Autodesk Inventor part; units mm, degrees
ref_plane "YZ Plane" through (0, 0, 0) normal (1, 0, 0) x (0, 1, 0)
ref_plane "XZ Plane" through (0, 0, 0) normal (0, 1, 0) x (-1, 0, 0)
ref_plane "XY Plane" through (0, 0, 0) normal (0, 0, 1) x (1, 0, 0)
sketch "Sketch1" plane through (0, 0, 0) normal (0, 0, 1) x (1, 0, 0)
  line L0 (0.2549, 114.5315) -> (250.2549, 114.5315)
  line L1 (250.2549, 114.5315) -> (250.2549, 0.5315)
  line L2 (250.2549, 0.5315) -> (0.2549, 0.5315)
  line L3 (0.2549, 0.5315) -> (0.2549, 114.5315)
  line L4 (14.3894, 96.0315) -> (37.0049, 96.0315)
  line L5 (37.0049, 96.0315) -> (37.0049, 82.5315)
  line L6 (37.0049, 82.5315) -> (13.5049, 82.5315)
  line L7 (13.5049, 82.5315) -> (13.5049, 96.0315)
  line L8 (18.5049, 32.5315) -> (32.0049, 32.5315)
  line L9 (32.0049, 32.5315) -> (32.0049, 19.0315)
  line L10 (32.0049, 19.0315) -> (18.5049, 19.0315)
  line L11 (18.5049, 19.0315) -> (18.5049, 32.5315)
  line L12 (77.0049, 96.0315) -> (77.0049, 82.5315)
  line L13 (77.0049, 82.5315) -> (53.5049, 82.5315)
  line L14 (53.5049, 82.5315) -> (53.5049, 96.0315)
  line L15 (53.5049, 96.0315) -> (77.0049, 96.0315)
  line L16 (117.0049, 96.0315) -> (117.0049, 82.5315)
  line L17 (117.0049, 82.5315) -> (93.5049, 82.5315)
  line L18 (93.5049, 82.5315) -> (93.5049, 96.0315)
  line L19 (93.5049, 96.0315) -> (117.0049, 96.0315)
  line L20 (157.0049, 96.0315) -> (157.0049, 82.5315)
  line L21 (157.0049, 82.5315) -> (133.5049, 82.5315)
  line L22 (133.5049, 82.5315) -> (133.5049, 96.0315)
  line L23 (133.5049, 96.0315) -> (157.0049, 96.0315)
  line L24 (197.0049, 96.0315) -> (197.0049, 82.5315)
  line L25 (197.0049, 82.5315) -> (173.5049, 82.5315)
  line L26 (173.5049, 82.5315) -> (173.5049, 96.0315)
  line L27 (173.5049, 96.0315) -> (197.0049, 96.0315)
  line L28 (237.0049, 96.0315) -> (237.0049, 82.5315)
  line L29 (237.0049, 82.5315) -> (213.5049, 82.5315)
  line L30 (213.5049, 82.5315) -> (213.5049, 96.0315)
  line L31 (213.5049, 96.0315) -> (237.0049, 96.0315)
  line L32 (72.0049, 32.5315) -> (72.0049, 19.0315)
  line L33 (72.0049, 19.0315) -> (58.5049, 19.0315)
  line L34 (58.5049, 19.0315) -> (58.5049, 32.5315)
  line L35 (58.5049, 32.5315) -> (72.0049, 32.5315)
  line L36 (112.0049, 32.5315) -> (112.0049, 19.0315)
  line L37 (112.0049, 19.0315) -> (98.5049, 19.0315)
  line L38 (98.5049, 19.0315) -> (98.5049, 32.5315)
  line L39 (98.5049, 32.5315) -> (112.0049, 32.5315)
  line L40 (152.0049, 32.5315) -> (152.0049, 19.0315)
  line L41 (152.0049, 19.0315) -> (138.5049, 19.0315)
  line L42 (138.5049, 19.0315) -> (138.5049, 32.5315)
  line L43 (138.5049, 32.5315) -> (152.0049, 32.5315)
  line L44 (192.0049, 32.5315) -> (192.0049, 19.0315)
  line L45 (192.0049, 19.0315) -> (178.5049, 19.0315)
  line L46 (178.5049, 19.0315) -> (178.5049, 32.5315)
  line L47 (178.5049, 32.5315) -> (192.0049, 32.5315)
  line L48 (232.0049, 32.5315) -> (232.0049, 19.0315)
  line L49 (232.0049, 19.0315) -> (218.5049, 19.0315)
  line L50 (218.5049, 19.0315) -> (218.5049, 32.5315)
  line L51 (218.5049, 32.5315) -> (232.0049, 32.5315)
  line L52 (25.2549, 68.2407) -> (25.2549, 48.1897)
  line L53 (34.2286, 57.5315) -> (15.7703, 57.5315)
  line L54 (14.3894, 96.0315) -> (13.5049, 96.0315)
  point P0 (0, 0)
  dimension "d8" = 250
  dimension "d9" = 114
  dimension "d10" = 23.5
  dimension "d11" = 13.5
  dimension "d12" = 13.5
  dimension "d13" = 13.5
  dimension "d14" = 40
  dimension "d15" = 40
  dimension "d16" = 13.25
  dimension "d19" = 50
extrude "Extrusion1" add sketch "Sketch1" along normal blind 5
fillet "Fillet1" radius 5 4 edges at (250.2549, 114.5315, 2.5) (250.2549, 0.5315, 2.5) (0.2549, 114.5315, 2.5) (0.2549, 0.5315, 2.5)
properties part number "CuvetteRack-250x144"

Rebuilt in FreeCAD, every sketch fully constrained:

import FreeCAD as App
import Part
import Sketcher


def edges_at(feature, points):
    """Names of the edges that pass closest to the given points."""
    edges = feature.Shape.Edges
    near = lambda p: min(range(len(edges)), key=lambda i: edges[i].distToShape(Part.Vertex(*p))[0])
    return sorted({f"Edge{near(p) + 1}" for p in points})

doc = App.newDocument("Part")
params = doc.addObject("Spreadsheet::Sheet", "Params")
for row, (alias, value) in enumerate([
    ("sketch1_width", "250 mm"),
    ("sketch1_height", "114 mm"),
    ("sketch1_width2", "13.5 mm"),
    ("sketch1_width3", "23.5 mm"),
    ("pad1_length", "5 mm"),
    ("fillet_radius", "5 mm"),
], start=1):
    params.set(f"A{row}", alias)
    params.set(f"B{row}", "=" + value)
    params.setAlias(f"B{row}", alias)

body = doc.addObject("PartDesign::Body", "Body")

# Sketch on XY plane
sketch1 = body.newObject("Sketcher::SketchObject", "Sketch")
sketch1.AttachmentSupport = (doc.getObject("XY_Plane"), [""])
sketch1.MapMode = "FlatFace"
sketch1.addGeometry([
    Part.LineSegment(App.Vector(250, 115, 0), App.Vector(0, 115, 0)),  # 0
    Part.LineSegment(App.Vector(0, 115, 0), App.Vector(0, 1, 0)),  # 1
    Part.LineSegment(App.Vector(0, 1, 0), App.Vector(250, 1, 0)),  # 2
    Part.LineSegment(App.Vector(250, 1, 0), App.Vector(250, 115, 0)),  # 3
    Part.LineSegment(App.Vector(19, 19, 0), App.Vector(19, 33, 0)),  # 4
    Part.LineSegment(App.Vector(19, 33, 0), App.Vector(32, 33, 0)),  # 5
    Part.LineSegment(App.Vector(32, 33, 0), App.Vector(32, 19, 0)),  # 6
    Part.LineSegment(App.Vector(32, 19, 0), App.Vector(19, 19, 0)),  # 7
    Part.LineSegment(App.Vector(59, 33, 0), App.Vector(72, 33, 0)),  # 8
    Part.LineSegment(App.Vector(72, 33, 0), App.Vector(72, 19, 0)),  # 9
    Part.LineSegment(App.Vector(72, 19, 0), App.Vector(59, 19, 0)),  # 10
    Part.LineSegment(App.Vector(59, 19, 0), App.Vector(59, 33, 0)),  # 11
    Part.LineSegment(App.Vector(99, 33, 0), App.Vector(112, 33, 0)),  # 12
    Part.LineSegment(App.Vector(112, 33, 0), App.Vector(112, 19, 0)),  # 13
    Part.LineSegment(App.Vector(112, 19, 0), App.Vector(99, 19, 0)),  # 14
    Part.LineSegment(App.Vector(99, 19, 0), App.Vector(99, 33, 0)),  # 15
    Part.LineSegment(App.Vector(139, 33, 0), App.Vector(152, 33, 0)),  # 16
    Part.LineSegment(App.Vector(152, 33, 0), App.Vector(152, 19, 0)),  # 17
    Part.LineSegment(App.Vector(152, 19, 0), App.Vector(139, 19, 0)),  # 18
    Part.LineSegment(App.Vector(139, 19, 0), App.Vector(139, 33, 0)),  # 19
    Part.LineSegment(App.Vector(179, 33, 0), App.Vector(192, 33, 0)),  # 20
    Part.LineSegment(App.Vector(192, 33, 0), App.Vector(192, 19, 0)),  # 21
    Part.LineSegment(App.Vector(192, 19, 0), App.Vector(179, 19, 0)),  # 22
    Part.LineSegment(App.Vector(179, 19, 0), App.Vector(179, 33, 0)),  # 23
    Part.LineSegment(App.Vector(219, 33, 0), App.Vector(232, 33, 0)),  # 24
    Part.LineSegment(App.Vector(232, 33, 0), App.Vector(232, 19, 0)),  # 25
    Part.LineSegment(App.Vector(232, 19, 0), App.Vector(219, 19, 0)),  # 26
    Part.LineSegment(App.Vector(219, 19, 0), App.Vector(219, 33, 0)),  # 27
    Part.LineSegment(App.Vector(14, 96, 0), App.Vector(37, 96, 0)),  # 28
    Part.LineSegment(App.Vector(37, 96, 0), App.Vector(37, 83, 0)),  # 29
    Part.LineSegment(App.Vector(37, 83, 0), App.Vector(14, 83, 0)),  # 30
    Part.LineSegment(App.Vector(14, 83, 0), App.Vector(14, 96, 0)),  # 31
    Part.LineSegment(App.Vector(54, 96, 0), App.Vector(77, 96, 0)),  # 32
    Part.LineSegment(App.Vector(77, 96, 0), App.Vector(77, 83, 0)),  # 33
    Part.LineSegment(App.Vector(77, 83, 0), App.Vector(54, 83, 0)),  # 34
    Part.LineSegment(App.Vector(54, 83, 0), App.Vector(54, 96, 0)),  # 35
    Part.LineSegment(App.Vector(94, 96, 0), App.Vector(117, 96, 0)),  # 36
    Part.LineSegment(App.Vector(117, 96, 0), App.Vector(117, 83, 0)),  # 37
    Part.LineSegment(App.Vector(117, 83, 0), App.Vector(94, 83, 0)),  # 38
    Part.LineSegment(App.Vector(94, 83, 0), App.Vector(94, 96, 0)),  # 39
    Part.LineSegment(App.Vector(134, 96, 0), App.Vector(157, 96, 0)),  # 40
    Part.LineSegment(App.Vector(157, 96, 0), App.Vector(157, 83, 0)),  # 41
    Part.LineSegment(App.Vector(157, 83, 0), App.Vector(134, 83, 0)),  # 42
    Part.LineSegment(App.Vector(134, 83, 0), App.Vector(134, 96, 0)),  # 43
    Part.LineSegment(App.Vector(174, 96, 0), App.Vector(197, 96, 0)),  # 44
    Part.LineSegment(App.Vector(197, 96, 0), App.Vector(197, 83, 0)),  # 45
    Part.LineSegment(App.Vector(197, 83, 0), App.Vector(174, 83, 0)),  # 46
    Part.LineSegment(App.Vector(174, 83, 0), App.Vector(174, 96, 0)),  # 47
    Part.LineSegment(App.Vector(214, 96, 0), App.Vector(237, 96, 0)),  # 48
    Part.LineSegment(App.Vector(237, 96, 0), App.Vector(237, 83, 0)),  # 49
    Part.LineSegment(App.Vector(237, 83, 0), App.Vector(214, 83, 0)),  # 50
    Part.LineSegment(App.Vector(214, 83, 0), App.Vector(214, 96, 0)),  # 51
], False)
sketch1.addConstraint([
    Sketcher.Constraint("Coincident", 0, 2, 1, 1),
    Sketcher.Constraint("Coincident", 1, 2, 2, 1),
    Sketcher.Constraint("Coincident", 2, 2, 3, 1),
    Sketcher.Constraint("Coincident", 3, 2, 0, 1),
    Sketcher.Constraint("Coincident", 4, 2, 5, 1),
    Sketcher.Constraint("Coincident", 5, 2, 6, 1),
    Sketcher.Constraint("Coincident", 6, 2, 7, 1),
    Sketcher.Constraint("Coincident", 7, 2, 4, 1),
    Sketcher.Constraint("Coincident", 8, 2, 9, 1),
    Sketcher.Constraint("Coincident", 9, 2, 10, 1),
    Sketcher.Constraint("Coincident", 10, 2, 11, 1),
    Sketcher.Constraint("Coincident", 11, 2, 8, 1),
    Sketcher.Constraint("Coincident", 12, 2, 13, 1),
    Sketcher.Constraint("Coincident", 13, 2, 14, 1),
    Sketcher.Constraint("Coincident", 14, 2, 15, 1),
    Sketcher.Constraint("Coincident", 15, 2, 12, 1),
    Sketcher.Constraint("Coincident", 16, 2, 17, 1),
    Sketcher.Constraint("Coincident", 17, 2, 18, 1),
    Sketcher.Constraint("Coincident", 18, 2, 19, 1),
    Sketcher.Constraint("Coincident", 19, 2, 16, 1),
    Sketcher.Constraint("Coincident", 20, 2, 21, 1),
    Sketcher.Constraint("Coincident", 21, 2, 22, 1),
    Sketcher.Constraint("Coincident", 22, 2, 23, 1),
    Sketcher.Constraint("Coincident", 23, 2, 20, 1),
    Sketcher.Constraint("Coincident", 24, 2, 25, 1),
    Sketcher.Constraint("Coincident", 25, 2, 26, 1),
    Sketcher.Constraint("Coincident", 26, 2, 27, 1),
    Sketcher.Constraint("Coincident", 27, 2, 24, 1),
    Sketcher.Constraint("Coincident", 28, 2, 29, 1),
    Sketcher.Constraint("Coincident", 29, 2, 30, 1),
    Sketcher.Constraint("Coincident", 30, 2, 31, 1),
    Sketcher.Constraint("Coincident", 31, 2, 28, 1),
    Sketcher.Constraint("Coincident", 32, 2, 33, 1),
    Sketcher.Constraint("Coincident", 33, 2, 34, 1),
    Sketcher.Constraint("Coincident", 34, 2, 35, 1),
    Sketcher.Constraint("Coincident", 35, 2, 32, 1),
    Sketcher.Constraint("Coincident", 36, 2, 37, 1),
    Sketcher.Constraint("Coincident", 37, 2, 38, 1),
    Sketcher.Constraint("Coincident", 38, 2, 39, 1),
    Sketcher.Constraint("Coincident", 39, 2, 36, 1),
    Sketcher.Constraint("Coincident", 40, 2, 41, 1),
    Sketcher.Constraint("Coincident", 41, 2, 42, 1),
    Sketcher.Constraint("Coincident", 42, 2, 43, 1),
    Sketcher.Constraint("Coincident", 43, 2, 40, 1),
    Sketcher.Constraint("Coincident", 44, 2, 45, 1),
    Sketcher.Constraint("Coincident", 45, 2, 46, 1),
    Sketcher.Constraint("Coincident", 46, 2, 47, 1),
    Sketcher.Constraint("Coincident", 47, 2, 44, 1),
    Sketcher.Constraint("Coincident", 48, 2, 49, 1),
    Sketcher.Constraint("Coincident", 49, 2, 50, 1),
    Sketcher.Constraint("Coincident", 50, 2, 51, 1),
    Sketcher.Constraint("Coincident", 51, 2, 48, 1),
    Sketcher.Constraint("Horizontal", 0),
    Sketcher.Constraint("Vertical", 1),
    Sketcher.Constraint("Horizontal", 2),
    Sketcher.Constraint("Vertical", 3),
    Sketcher.Constraint("Vertical", 4),
    Sketcher.Constraint("Horizontal", 5),
    Sketcher.Constraint("Vertical", 6),
    Sketcher.Constraint("Horizontal", 7),
    Sketcher.Constraint("Horizontal", 8),
    Sketcher.Constraint("Vertical", 9),
    Sketcher.Constraint("Horizontal", 10),
    Sketcher.Constraint("Vertical", 11),
    Sketcher.Constraint("Horizontal", 12),
    Sketcher.Constraint("Vertical", 13),
    Sketcher.Constraint("Horizontal", 14),
    Sketcher.Constraint("Vertical", 15),
    Sketcher.Constraint("Horizontal", 16),
    Sketcher.Constraint("Vertical", 17),
    Sketcher.Constraint("Horizontal", 18),
    Sketcher.Constraint("Vertical", 19),
    Sketcher.Constraint("Horizontal", 20),
    Sketcher.Constraint("Vertical", 21),
    Sketcher.Constraint("Horizontal", 22),
    Sketcher.Constraint("Vertical", 23),
    Sketcher.Constraint("Horizontal", 24),
    Sketcher.Constraint("Vertical", 25),
    Sketcher.Constraint("Horizontal", 26),
    Sketcher.Constraint("Vertical", 27),
    Sketcher.Constraint("Horizontal", 28),
    Sketcher.Constraint("Vertical", 29),
    Sketcher.Constraint("Horizontal", 30),
    Sketcher.Constraint("Vertical", 31),
    Sketcher.Constraint("Horizontal", 32),
    Sketcher.Constraint("Vertical", 33),
    Sketcher.Constraint("Horizontal", 34),
    Sketcher.Constraint("Vertical", 35),
    Sketcher.Constraint("Horizontal", 36),
    Sketcher.Constraint("Vertical", 37),
    Sketcher.Constraint("Horizontal", 38),
    Sketcher.Constraint("Vertical", 39),
    Sketcher.Constraint("Horizontal", 40),
    Sketcher.Constraint("Vertical", 41),
    Sketcher.Constraint("Horizontal", 42),
    Sketcher.Constraint("Vertical", 43),
    Sketcher.Constraint("Horizontal", 44),
    Sketcher.Constraint("Vertical", 45),
    Sketcher.Constraint("Horizontal", 46),
    Sketcher.Constraint("Vertical", 47),
    Sketcher.Constraint("Horizontal", 48),
    Sketcher.Constraint("Vertical", 49),
    Sketcher.Constraint("Horizontal", 50),
    Sketcher.Constraint("Vertical", 51),
    Sketcher.Constraint("Horizontal", 5, 2, 8, 2),
    Sketcher.Constraint("Horizontal", 7, 2, 9, 2),
    Sketcher.Constraint("Horizontal", 11, 2, 12, 2),
    Sketcher.Constraint("Horizontal", 10, 2, 13, 2),
    Sketcher.Constraint("Horizontal", 15, 2, 16, 2),
    Sketcher.Constraint("Horizontal", 14, 2, 17, 2),
    Sketcher.Constraint("Horizontal", 19, 2, 20, 2),
    Sketcher.Constraint("Horizontal", 18, 2, 21, 2),
    Sketcher.Constraint("Horizontal", 23, 2, 24, 2),
    Sketcher.Constraint("Horizontal", 22, 2, 25, 2),
    Sketcher.Constraint("Horizontal", 31, 2, 32, 2),
    Sketcher.Constraint("Horizontal", 30, 2, 33, 2),
    Sketcher.Constraint("Horizontal", 35, 2, 36, 2),
    Sketcher.Constraint("Horizontal", 34, 2, 37, 2),
    Sketcher.Constraint("Horizontal", 39, 2, 40, 2),
    Sketcher.Constraint("Horizontal", 38, 2, 41, 2),
    Sketcher.Constraint("Horizontal", 43, 2, 44, 2),
    Sketcher.Constraint("Horizontal", 42, 2, 45, 2),
    Sketcher.Constraint("Horizontal", 47, 2, 48, 2),
    Sketcher.Constraint("Horizontal", 46, 2, 49, 2),
    Sketcher.Constraint("Equal", 7, 8),
    Sketcher.Constraint("Equal", 10, 12),
    Sketcher.Constraint("Equal", 14, 16),
    Sketcher.Constraint("Equal", 18, 20),
    Sketcher.Constraint("Equal", 22, 24),
    Sketcher.Constraint("Equal", 30, 32),
    Sketcher.Constraint("Equal", 34, 36),
    Sketcher.Constraint("Equal", 38, 40),
    Sketcher.Constraint("Equal", 42, 44),
    Sketcher.Constraint("Equal", 46, 48),
    Sketcher.Constraint("Equal", 26, 4),
    Sketcher.Constraint("Equal", 27, 29),
    Sketcher.Constraint("DistanceX", 0, 2, 0, 1, 250.0),
    Sketcher.Constraint("DistanceY", 1, 2, 1, 1, 114.0),
    Sketcher.Constraint("DistanceX", 5, 1, 5, 2, 13.5),
    Sketcher.Constraint("DistanceX", 28, 1, 28, 2, 23.5),
    Sketcher.Constraint("DistanceX", 5, 2, 8, 2, 40.0),
    Sketcher.Constraint("DistanceX", 8, 2, 12, 2, 40.0),
    Sketcher.Constraint("DistanceX", 12, 2, 16, 2, 40.0),
    Sketcher.Constraint("DistanceX", 16, 2, 20, 2, 40.0),
    Sketcher.Constraint("DistanceX", 20, 2, 24, 2, 40.0),
    Sketcher.Constraint("DistanceY", 5, 2, 29, 2, 50.0),
    Sketcher.Constraint("DistanceX", 28, 2, 32, 2, 40.0),
    Sketcher.Constraint("DistanceX", 32, 2, 36, 2, 40.0),
    Sketcher.Constraint("DistanceX", 36, 2, 40, 2, 40.0),
    Sketcher.Constraint("DistanceX", 40, 2, 44, 2, 40.0),
    Sketcher.Constraint("DistanceX", 44, 2, 48, 2, 40.0),
    Sketcher.Constraint("DistanceX", 0, 2, 30, 2, 13.25),
    Sketcher.Constraint("DistanceY", 1, 2, 4, 2, 32.0),
    Sketcher.Constraint("DistanceX", 5, 2, 28, 2, 5.0),
    Sketcher.Constraint("DistanceX", -1, 1, 0, 2, 0.255),
    Sketcher.Constraint("DistanceY", -1, 1, 0, 2, 114.5315),
])
sketch1.setExpression("Constraints[136]", "Params.sketch1_width")
sketch1.setExpression("Constraints[137]", "Params.sketch1_height")
sketch1.setExpression("Constraints[138]", "Params.sketch1_width2")
sketch1.setExpression("Constraints[139]", "Params.sketch1_width3")
pad1 = body.newObject("PartDesign::Pad", "Pad")
pad1.Profile = sketch1
pad1.setExpression("Length", "Params.pad1_length")
doc.recompute()

fillet = body.newObject("PartDesign::Fillet", "Fillet")
fillet.Base = (pad1, edges_at(pad1, [
    (250.255, 114.531, 2.5),
    (250.255, 0.531, 2.5),
    (0.255, 114.531, 2.5),
    (0.255, 0.531, 2.5),
]))
fillet.setExpression("Radius", "Params.fillet_radius")

doc.recompute()
